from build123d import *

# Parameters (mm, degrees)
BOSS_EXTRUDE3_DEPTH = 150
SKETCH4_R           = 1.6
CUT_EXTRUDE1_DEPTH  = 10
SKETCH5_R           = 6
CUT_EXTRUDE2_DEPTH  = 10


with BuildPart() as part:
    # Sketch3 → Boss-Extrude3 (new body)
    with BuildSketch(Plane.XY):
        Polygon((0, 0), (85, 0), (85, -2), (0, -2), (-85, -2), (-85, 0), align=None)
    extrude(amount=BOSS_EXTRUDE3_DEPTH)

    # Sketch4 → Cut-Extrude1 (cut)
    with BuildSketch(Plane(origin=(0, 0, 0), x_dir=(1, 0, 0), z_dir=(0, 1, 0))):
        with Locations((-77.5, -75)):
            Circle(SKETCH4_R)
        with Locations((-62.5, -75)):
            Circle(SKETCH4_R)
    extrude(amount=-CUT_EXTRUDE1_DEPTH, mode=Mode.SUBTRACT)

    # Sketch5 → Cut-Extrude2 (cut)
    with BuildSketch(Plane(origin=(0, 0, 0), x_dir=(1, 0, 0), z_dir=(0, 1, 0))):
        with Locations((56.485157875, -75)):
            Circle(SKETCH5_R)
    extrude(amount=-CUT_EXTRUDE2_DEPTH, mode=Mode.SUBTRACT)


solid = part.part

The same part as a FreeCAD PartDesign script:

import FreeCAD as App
import Part
import Sketcher


def add_polygon(sketch, points):
    """Adds a closed chain of lines whose ends are joined by coincident constraints."""
    first, n = sketch.GeometryCount, len(points)
    for a, b in zip(points, points[1:] + points[:1]):
        sketch.addGeometry(Part.LineSegment(App.Vector(*a, 0), App.Vector(*b, 0)), False)
    for i in range(n):
        sketch.addConstraint(Sketcher.Constraint("Coincident", first + i, 2, first + (i + 1) % n, 1))

doc = App.newDocument("Part")
params = doc.addObject("Spreadsheet::Sheet", "Params")
for row, (alias, value) in enumerate([
    ("sketch1_width", "170 mm"),
    ("sketch1_height", "2 mm"),
    ("pad1_length", "150 mm"),
    ("sketch2_diameter", "3.2 mm"),
    ("pocket1_length", "10 mm"),
    ("sketch3_diameter", "12 mm"),
    ("pocket2_length", "10 mm"),
], start=1):
    params.set(f"A{row}", alias)
    params.set(f"B{row}", "=" + value)
    params.setAlias(f"B{row}", alias)

body = doc.addObject("PartDesign::Body", "Body")

# Sketch on XY plane
sketch1 = body.newObject("Sketcher::SketchObject", "Sketch")
sketch1.AttachmentSupport = (doc.getObject("XY_Plane"), [""])
sketch1.MapMode = "FlatFace"
add_polygon(sketch1, [(85, 0), (-85, 0), (-85, -2), (85, -2)])  # lines 0-3
sketch1.addConstraint([
    Sketcher.Constraint("Horizontal", 0),
    Sketcher.Constraint("Vertical", 1),
    Sketcher.Constraint("Horizontal", 2),
    Sketcher.Constraint("Vertical", 3),
    Sketcher.Constraint("Symmetric", 0, 2, 3, 2, -1, 1),
    Sketcher.Constraint("DistanceX", 0, 2, 0, 1, 170.0),
    Sketcher.Constraint("DistanceY", 1, 2, 1, 1, 2.0),
])
sketch1.setExpression("Constraints[9]", "Params.sketch1_width")
sketch1.setExpression("Constraints[10]", "Params.sketch1_height")
pad1 = body.newObject("PartDesign::Pad", "Pad")
pad1.Profile = sketch1
pad1.setExpression("Length", "Params.pad1_length")

# Sketch on XZ plane
sketch2 = body.newObject("Sketcher::SketchObject", "Sketch001")
sketch2.AttachmentSupport = (doc.getObject("XZ_Plane"), [""])
sketch2.MapMode = "FlatFace"
sketch2.addGeometry([
    Part.Circle(App.Vector(-77.5, 75, 0), App.Vector(0, 0, 1), 1.6),
    Part.Circle(App.Vector(-62.5, 75, 0), App.Vector(0, 0, 1), 1.6),
], False)
sketch2.addConstraint([
    Sketcher.Constraint("Equal", 0, 1),
    Sketcher.Constraint("Horizontal", 0, 3, 1, 3),
    Sketcher.Constraint("Diameter", 0, 3.2),
    Sketcher.Constraint("DistanceY", -1, 1, 0, 3, 75.0),
    Sketcher.Constraint("DistanceX", 0, 3, 1, 3, 15.0),
    Sketcher.Constraint("DistanceX", 0, 3, -1, 1, 77.5),
])
sketch2.setExpression("Constraints[2]", "Params.sketch2_diameter")
pocket1 = body.newObject("PartDesign::Pocket", "Pocket")
pocket1.Profile = sketch2
pocket1.setExpression("Length", "Params.pocket1_length")
pocket1.Reversed = True

# Sketch on XZ plane
sketch3 = body.newObject("Sketcher::SketchObject", "Sketch002")
sketch3.AttachmentSupport = (doc.getObject("XZ_Plane"), [""])
sketch3.MapMode = "FlatFace"
sketch3.addGeometry(Part.Circle(App.Vector(56.485158, 75, 0), App.Vector(0, 0, 1), 6), False)
sketch3.addConstraint([
    Sketcher.Constraint("Diameter", 0, 12.0),
    Sketcher.Constraint("DistanceY", -1, 1, 0, 3, 75.0),
    Sketcher.Constraint("DistanceX", -1, 1, 0, 3, 56.485158),
])
sketch3.setExpression("Constraints[0]", "Params.sketch3_diameter")
pocket2 = body.newObject("PartDesign::Pocket", "Pocket001")
pocket2.Profile = sketch3
pocket2.setExpression("Length", "Params.pocket2_length")
pocket2.Reversed = True

doc.recompute()
